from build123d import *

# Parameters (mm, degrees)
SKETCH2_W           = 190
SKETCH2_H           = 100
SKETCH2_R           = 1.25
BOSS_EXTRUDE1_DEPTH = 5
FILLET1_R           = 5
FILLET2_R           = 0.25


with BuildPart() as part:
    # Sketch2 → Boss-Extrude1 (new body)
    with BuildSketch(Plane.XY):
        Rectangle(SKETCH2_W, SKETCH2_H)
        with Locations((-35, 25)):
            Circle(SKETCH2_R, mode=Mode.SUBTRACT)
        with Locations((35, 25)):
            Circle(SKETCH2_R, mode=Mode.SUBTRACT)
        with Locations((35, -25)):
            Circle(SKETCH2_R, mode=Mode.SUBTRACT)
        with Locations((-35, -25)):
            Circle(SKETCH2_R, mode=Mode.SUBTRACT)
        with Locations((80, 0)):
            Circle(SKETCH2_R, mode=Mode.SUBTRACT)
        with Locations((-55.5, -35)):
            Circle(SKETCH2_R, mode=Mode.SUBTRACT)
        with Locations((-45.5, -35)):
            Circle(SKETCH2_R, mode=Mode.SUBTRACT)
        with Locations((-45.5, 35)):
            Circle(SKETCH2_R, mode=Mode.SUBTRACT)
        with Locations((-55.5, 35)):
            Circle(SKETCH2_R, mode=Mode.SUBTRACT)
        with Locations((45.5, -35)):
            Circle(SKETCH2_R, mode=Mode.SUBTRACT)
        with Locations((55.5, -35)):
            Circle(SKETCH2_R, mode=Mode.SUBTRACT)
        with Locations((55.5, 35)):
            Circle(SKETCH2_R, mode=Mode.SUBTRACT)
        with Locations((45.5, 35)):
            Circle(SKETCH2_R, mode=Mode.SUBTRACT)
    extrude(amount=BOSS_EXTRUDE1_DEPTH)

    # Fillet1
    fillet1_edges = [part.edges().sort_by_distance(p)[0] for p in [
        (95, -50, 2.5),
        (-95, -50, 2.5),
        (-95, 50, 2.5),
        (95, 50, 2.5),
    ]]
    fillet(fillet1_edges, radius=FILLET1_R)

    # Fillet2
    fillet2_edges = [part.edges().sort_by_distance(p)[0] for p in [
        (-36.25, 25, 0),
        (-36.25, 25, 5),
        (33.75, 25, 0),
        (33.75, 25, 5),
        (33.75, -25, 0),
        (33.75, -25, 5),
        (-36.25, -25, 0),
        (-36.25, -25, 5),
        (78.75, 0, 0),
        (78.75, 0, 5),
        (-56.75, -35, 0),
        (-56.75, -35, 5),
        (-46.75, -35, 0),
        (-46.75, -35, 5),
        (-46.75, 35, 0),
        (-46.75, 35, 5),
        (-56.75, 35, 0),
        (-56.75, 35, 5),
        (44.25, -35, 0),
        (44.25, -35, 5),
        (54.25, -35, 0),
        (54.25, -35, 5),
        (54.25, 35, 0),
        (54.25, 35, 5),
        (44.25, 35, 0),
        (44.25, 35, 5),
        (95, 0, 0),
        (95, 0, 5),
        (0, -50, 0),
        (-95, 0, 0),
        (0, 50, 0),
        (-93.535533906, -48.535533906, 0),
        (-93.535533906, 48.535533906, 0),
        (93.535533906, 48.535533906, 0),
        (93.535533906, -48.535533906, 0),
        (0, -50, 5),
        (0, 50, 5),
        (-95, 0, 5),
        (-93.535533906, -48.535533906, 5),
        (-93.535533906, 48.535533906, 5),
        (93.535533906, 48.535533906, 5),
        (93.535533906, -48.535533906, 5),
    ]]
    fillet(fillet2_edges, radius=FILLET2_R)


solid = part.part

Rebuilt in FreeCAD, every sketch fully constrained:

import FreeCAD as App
import Part
import Sketcher


def edges_at(feature, points):
    """Names of the edges that pass closest to the given points."""
    edges = feature.Shape.Edges
    near = lambda p: min(range(len(edges)), key=lambda i: edges[i].distToShape(Part.Vertex(*p))[0])
    return sorted({f"Edge{near(p) + 1}" for p in points})

doc = App.newDocument("Part")
body = doc.addObject("PartDesign::Body", "Body")

# Sketch on XY plane
sketch1 = body.newObject("Sketcher::SketchObject", "Sketch")
sketch1.AttachmentSupport = (doc.getObject("XY_Plane"), [""])
sketch1.MapMode = "FlatFace"
sketch1.addGeometry([
    Part.LineSegment(App.Vector(-95, 50, 0), App.Vector(-95, -50, 0)),  # 0
    Part.LineSegment(App.Vector(-95, -50, 0), App.Vector(95, -50, 0)),  # 1
    Part.LineSegment(App.Vector(95, -50, 0), App.Vector(95, 50, 0)),  # 2
    Part.LineSegment(App.Vector(95, 50, 0), App.Vector(-95, 50, 0)),  # 3
    Part.Circle(App.Vector(-55.5, -35, 0), App.Vector(0, 0, 1), 1.2),  # 4
    Part.Circle(App.Vector(-45.5, -35, 0), App.Vector(0, 0, 1), 1.2),  # 5
    Part.Circle(App.Vector(-35, -25, 0), App.Vector(0, 0, 1), 1.2),  # 6
    Part.Circle(App.Vector(45.5, -35, 0), App.Vector(0, 0, 1), 1.2),  # 7
    Part.Circle(App.Vector(35, -25, 0), App.Vector(0, 0, 1), 1.2),  # 8
    Part.Circle(App.Vector(55.5, -35, 0), App.Vector(0, 0, 1), 1.2),  # 9
    Part.Circle(App.Vector(-35, 25, 0), App.Vector(0, 0, 1), 1.2),  # 10
    Part.Circle(App.Vector(-55.5, 35, 0), App.Vector(0, 0, 1), 1.2),  # 11
    Part.Circle(App.Vector(-45.5, 35, 0), App.Vector(0, 0, 1), 1.2),  # 12
    Part.Circle(App.Vector(80, 0, 0), App.Vector(0, 0, 1), 1.2),  # 13
    Part.Circle(App.Vector(35, 25, 0), App.Vector(0, 0, 1), 1.2),  # 14
    Part.Circle(App.Vector(45.5, 35, 0), App.Vector(0, 0, 1), 1.2),  # 15
    Part.Circle(App.Vector(55.5, 35, 0), App.Vector(0, 0, 1), 1.2),  # 16
], False)
sketch1.addConstraint([
    Sketcher.Constraint("Coincident", 0, 2, 1, 1),
    Sketcher.Constraint("Coincident", 1, 2, 2, 1),
    Sketcher.Constraint("Coincident", 2, 2, 3, 1),
    Sketcher.Constraint("Coincident", 3, 2, 0, 1),
    Sketcher.Constraint("Vertical", 0),
    Sketcher.Constraint("Horizontal", 1),
    Sketcher.Constraint("Vertical", 2),
    Sketcher.Constraint("Horizontal", 3),
    Sketcher.Constraint("Equal", 4, 5),
    Sketcher.Constraint("Equal", 5, 6),
    Sketcher.Constraint("Equal", 6, 7),
    Sketcher.Constraint("Equal", 7, 8),
    Sketcher.Constraint("Equal", 8, 9),
    Sketcher.Constraint("Equal", 9, 10),
    Sketcher.Constraint("Equal", 10, 11),
    Sketcher.Constraint("Equal", 11, 12),
    Sketcher.Constraint("Equal", 12, 13),
    Sketcher.Constraint("Equal", 13, 14),
    Sketcher.Constraint("Equal", 14, 15),
    Sketcher.Constraint("Equal", 15, 16),
    Sketcher.Constraint("Symmetric", 8, 3, 10, 3, -1, 1),
    Sketcher.Constraint("Symmetric", 9, 3, 11, 3, -1, 1),
    Sketcher.Constraint("Symmetric", 7, 3, 12, 3, -1, 1),
    Sketcher.Constraint("Symmetric", 6, 3, 14, 3, -1, 1),
    Sketcher.Constraint("Symmetric", 5, 3, 15, 3, -1, 1),
    Sketcher.Constraint("Symmetric", 4, 3, 16, 3, -1, 1),
    Sketcher.Constraint("Symmetric", 0, 2, 2, 2, -1, 1),
    Sketcher.Constraint("Symmetric", 5, 3, 7, 3, -2),
    Sketcher.Constraint("Symmetric", 6, 3, 8, 3, -2),
    Sketcher.Constraint("Symmetric", 4, 3, 9, 3, -2),
    Sketcher.Constraint("PointOnObject", 13, 3, -1),
    Sketcher.Constraint("Horizontal", 4, 3, 5, 3),
    Sketcher.Constraint("Diameter", 4, 2.5),
    Sketcher.Constraint("DistanceX", 1, 1, 1, 2, 190.0),
    Sketcher.Constraint("DistanceY", 0, 2, 0, 1, 100.0),
    Sketcher.Constraint("DistanceY", 4, 3, -1, 1, 35.0),
    Sketcher.Constraint("DistanceX", 6, 3, -1, 1, 35.0),
    Sketcher.Constraint("DistanceY", 6, 3, -1, 1, 25.0),
    Sketcher.Constraint("DistanceX", -1, 1, 13, 3, 80.0),
    Sketcher.Constraint("DistanceX", 4, 3, 5, 3, 10.0),
    Sketcher.Constraint("DistanceX", 5, 3, 7, 3, 91.0),
])
pad1 = body.newObject("PartDesign::Pad", "Pad")
pad1.Profile = sketch1
pad1.Length = 5
doc.recompute()

fillet = body.newObject("PartDesign::Fillet", "Fillet")
fillet.Base = (pad1, edges_at(pad1, [
    (95, -50, 2.5),
    (-95, -50, 2.5),
    (-95, 50, 2.5),
    (95, 50, 2.5),
]))
fillet.Radius = 5
doc.recompute()

fillet2 = body.newObject("PartDesign::Fillet", "Fillet001")
fillet2.Base = (fillet, edges_at(fillet, [
    (-36.25, 25, 0),
    (-36.25, 25, 5),
    (33.75, 25, 0),
    (33.75, 25, 5),
    (33.75, -25, 0),
    (33.75, -25, 5),
    (-36.25, -25, 0),
    (-36.25, -25, 5),
    (78.75, 0, 0),
    (78.75, 0, 5),
    (-56.75, -35, 0),
    (-56.75, -35, 5),
    (-46.75, -35, 0),
    (-46.75, -35, 5),
    (-46.75, 35, 0),
    (-46.75, 35, 5),
    (-56.75, 35, 0),
    (-56.75, 35, 5),
    (44.25, -35, 0),
    (44.25, -35, 5),
    (54.25, -35, 0),
    (54.25, -35, 5),
    (54.25, 35, 0),
    (54.25, 35, 5),
    (44.25, 35, 0),
    (44.25, 35, 5),
    (95, 0, 0),
    (95, 0, 5),
    (0, -50, 0),
    (-95, 0, 0),
    (0, 50, 0),
    (-93.536, -48.536, 0),
    (-93.536, 48.536, 0),
    (93.536, 48.536, 0),
    (93.536, -48.536, 0),
    (0, -50, 5),
    (0, 50, 5),
    (-95, 0, 5),
    (-93.536, -48.536, 5),
    (-93.536, 48.536, 5),
    (93.536, 48.536, 5),
    (93.536, -48.536, 5),
]))
fillet2.Radius = 0.25

doc.recompute()
